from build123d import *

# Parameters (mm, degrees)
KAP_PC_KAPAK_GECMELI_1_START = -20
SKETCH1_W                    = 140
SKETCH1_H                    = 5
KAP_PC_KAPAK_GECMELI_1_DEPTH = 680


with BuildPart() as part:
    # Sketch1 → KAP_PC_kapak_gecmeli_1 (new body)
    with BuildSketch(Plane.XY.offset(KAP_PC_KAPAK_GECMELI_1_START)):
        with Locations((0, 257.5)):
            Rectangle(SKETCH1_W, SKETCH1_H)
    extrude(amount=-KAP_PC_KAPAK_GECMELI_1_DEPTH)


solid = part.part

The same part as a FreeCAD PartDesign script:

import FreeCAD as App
import Part
import Sketcher
Q = App.Units.Quantity


def add_polygon(sketch, points):
    """Adds a closed chain of lines whose ends are joined by coincident constraints."""
    first, n = sketch.GeometryCount, len(points)
    for a, b in zip(points, points[1:] + points[:1]):
        sketch.addGeometry(Part.LineSegment(App.Vector(*a, 0), App.Vector(*b, 0)), False)
    for i in range(n):
        sketch.addConstraint(Sketcher.Constraint("Coincident", first + i, 2, first + (i + 1) % n, 1))

doc = App.newDocument("Part")
params = doc.addObject("Spreadsheet::Sheet", "Params")
for row, (alias, value) in enumerate([
    ("sketch1_width", "140 mm"),
    ("sketch1_height", "5 mm"),
    ("pad1_length", "680 mm"),
], start=1):
    params.set(f"A{row}", alias)
    params.set(f"B{row}", "=" + value)
    params.setAlias(f"B{row}", alias)

body = doc.addObject("PartDesign::Body", "Body")

# Sketch on XY plane
sketch1 = body.newObject("Sketcher::SketchObject", "Sketch")
sketch1.AttachmentSupport = (doc.getObject("XY_Plane"), [""])
sketch1.MapMode = "FlatFace"
sketch1.AttachmentOffset = App.Placement(App.Vector(0, 0, -20), App.Rotation())
add_polygon(sketch1, [(-70, 260), (-70, 255), (70, 255), (70, 260)])  # lines 0-3
sketch1.addConstraint([
    Sketcher.Constraint("Vertical", 0),
    Sketcher.Constraint("Horizontal", 1),
    Sketcher.Constraint("Vertical", 2),
    Sketcher.Constraint("Horizontal", 3),
    Sketcher.Constraint("DistanceX", 1, 1, 1, 2, Q("140 mm")),
    Sketcher.Constraint("DistanceY", 0, 2, 0, 1, Q("5 mm")),
    Sketcher.Constraint("DistanceX", 0, 2, -1, 1, Q("70 mm")),
    Sketcher.Constraint("DistanceY", -1, 1, 0, 2, Q("255 mm")),
])
sketch1.setExpression("Constraints[8]", "Params.sketch1_width")
sketch1.setExpression("Constraints[9]", "Params.sketch1_height")
pad1 = body.newObject("PartDesign::Pad", "Pad")
pad1.Profile = sketch1
pad1.setExpression("Length", "Params.pad1_length")
pad1.Reversed = True

doc.recompute()
